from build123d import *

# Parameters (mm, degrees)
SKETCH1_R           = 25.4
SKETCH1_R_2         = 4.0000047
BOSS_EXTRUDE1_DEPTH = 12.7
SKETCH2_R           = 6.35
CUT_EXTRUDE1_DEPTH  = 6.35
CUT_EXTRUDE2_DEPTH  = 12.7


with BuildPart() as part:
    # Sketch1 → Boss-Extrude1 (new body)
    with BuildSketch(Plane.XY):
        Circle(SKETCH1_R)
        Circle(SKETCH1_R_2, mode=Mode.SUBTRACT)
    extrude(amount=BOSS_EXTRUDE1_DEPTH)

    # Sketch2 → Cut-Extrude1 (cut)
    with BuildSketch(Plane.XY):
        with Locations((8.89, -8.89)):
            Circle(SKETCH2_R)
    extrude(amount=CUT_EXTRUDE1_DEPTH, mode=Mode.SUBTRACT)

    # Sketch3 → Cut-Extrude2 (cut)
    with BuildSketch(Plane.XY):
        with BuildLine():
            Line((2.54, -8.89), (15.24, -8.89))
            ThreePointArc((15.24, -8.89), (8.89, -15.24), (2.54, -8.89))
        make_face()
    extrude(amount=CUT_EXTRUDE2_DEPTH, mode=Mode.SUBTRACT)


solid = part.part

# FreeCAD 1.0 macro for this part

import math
import FreeCAD as App
import Part
import Sketcher

V = App.Vector
Q = App.Units.Quantity

doc = App.newDocument("Part")
params = doc.addObject("Spreadsheet::Sheet", "Params")
for row, (alias, value) in enumerate([
    ("sketch1_diameter", "2 in"),
    ("pad1_length", "0.5 in"),
    ("sketch2_diameter", "0.5 in"),
    ("pocket1_length", "0.25 in"),
    ("sketch3_radius", "0.25 in"),
    ("pocket2_length", "0.5 in"),
], start=1):
    params.set(f"A{row}", alias)
    params.set(f"B{row}", "=" + value)
    params.setAlias(f"B{row}", alias)

body = doc.addObject("PartDesign::Body", "Body")

sketch1 = body.newObject("Sketcher::SketchObject", "Sketch")
sketch1.AttachmentSupport = (doc.getObject("XY_Plane"), [""])
sketch1.MapMode = "FlatFace"
sketch1.addGeometry([
    Part.Circle(V(0, 0, 0), V(0, 0, 1), 25.4),
    Part.Circle(V(0, 0, 0), V(0, 0, 1), 4),
], False)
sketch1.addConstraint([
    Sketcher.Constraint("Coincident", 0, 3, -1, 1),
    Sketcher.Constraint("Coincident", 1, 3, -1, 1),
    Sketcher.Constraint("Diameter", 0, Q("2 in")),
    Sketcher.Constraint("Diameter", 1, Q("8.000009 mm")),
])
sketch1.setExpression("Constraints[2]", "Params.sketch1_diameter")
pad1 = body.newObject("PartDesign::Pad", "Pad")
pad1.Profile = sketch1
pad1.setExpression("Length", "Params.pad1_length")

sketch2 = body.newObject("Sketcher::SketchObject", "Sketch001")
sketch2.AttachmentSupport = (doc.getObject("XY_Plane"), [""])
sketch2.MapMode = "FlatFace"
sketch2.addGeometry(Part.Circle(V(9, -9, 0), V(0, 0, 1), 6), False)
sketch2.addConstraint([
    Sketcher.Constraint("Diameter", 0, Q("0.5 in")),
    Sketcher.Constraint("DistanceX", -1, 1, 0, 3, Q("0.35 in")),
    Sketcher.Constraint("DistanceY", 0, 3, -1, 1, Q("0.35 in")),
])
sketch2.setExpression("Constraints[0]", "Params.sketch2_diameter")
pocket1 = body.newObject("PartDesign::Pocket", "Pocket")
pocket1.Profile = sketch2
pocket1.setExpression("Length", "Params.pocket1_length")
pocket1.Reversed = True

sketch3 = body.newObject("Sketcher::SketchObject", "Sketch002")
sketch3.AttachmentSupport = (doc.getObject("XY_Plane"), [""])
sketch3.MapMode = "FlatFace"
sketch3.addGeometry([
    Part.LineSegment(V(15, -9, 0), V(3, -9, 0)),
    Part.ArcOfCircle(Part.Circle(V(9, -9, 0), V(0, 0, 1), 6), math.radians(180), math.radians(360)),
], False)
sketch3.addConstraint([
    Sketcher.Constraint("Coincident", 0, 1, 1, 2),
    Sketcher.Constraint("Coincident", 1, 1, 0, 2),
    Sketcher.Constraint("Horizontal", 0),
    Sketcher.Constraint("Horizontal", 1, 3, 0, 1),
    Sketcher.Constraint("Radius", 1, Q("0.25 in")),
    Sketcher.Constraint("DistanceX", -1, 1, 0, 1, Q("0.6 in")),
    Sketcher.Constraint("DistanceY", 1, 3, -1, 1, Q("0.35 in")),
])
sketch3.setExpression("Constraints[4]", "Params.sketch3_radius")
pocket2 = body.newObject("PartDesign::Pocket", "Pocket001")
pocket2.Profile = sketch3
pocket2.setExpression("Length", "Params.pocket2_length")
pocket2.Reversed = True

doc.recompute()
